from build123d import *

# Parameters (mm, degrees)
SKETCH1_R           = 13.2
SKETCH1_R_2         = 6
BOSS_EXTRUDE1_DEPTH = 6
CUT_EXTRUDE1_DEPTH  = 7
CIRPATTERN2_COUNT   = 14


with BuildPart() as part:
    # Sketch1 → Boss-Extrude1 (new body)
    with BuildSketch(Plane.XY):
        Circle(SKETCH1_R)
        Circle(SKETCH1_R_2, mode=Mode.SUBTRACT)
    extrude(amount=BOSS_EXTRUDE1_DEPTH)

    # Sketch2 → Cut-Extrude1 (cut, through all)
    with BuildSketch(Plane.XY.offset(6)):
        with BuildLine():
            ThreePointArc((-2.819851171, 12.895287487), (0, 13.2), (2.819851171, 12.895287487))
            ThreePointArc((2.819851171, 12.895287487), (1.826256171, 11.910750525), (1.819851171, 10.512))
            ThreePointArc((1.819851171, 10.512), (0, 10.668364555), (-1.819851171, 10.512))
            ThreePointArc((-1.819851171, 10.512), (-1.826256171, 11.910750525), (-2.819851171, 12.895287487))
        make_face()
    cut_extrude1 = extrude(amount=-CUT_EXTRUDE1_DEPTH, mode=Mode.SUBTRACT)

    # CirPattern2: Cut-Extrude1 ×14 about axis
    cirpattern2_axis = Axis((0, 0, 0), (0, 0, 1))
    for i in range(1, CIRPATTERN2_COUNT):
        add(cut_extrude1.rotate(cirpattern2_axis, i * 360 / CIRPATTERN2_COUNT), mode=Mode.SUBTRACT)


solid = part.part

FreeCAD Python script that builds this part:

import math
import FreeCAD as App
import Part
import Sketcher

V = App.Vector

doc = App.newDocument("Part")
params = doc.addObject("Spreadsheet::Sheet", "Params")
for row, (alias, value) in enumerate([
    ("sketch1_diameter", "12 mm"),
    ("sketch1_diameter2", "26.4 mm"),
    ("pad1_length", "6 mm"),
    ("sketch2_radius", "13.2 mm"),
], start=1):
    params.set(f"A{row}", alias)
    params.set(f"B{row}", "=" + value)
    params.setAlias(f"B{row}", alias)

body = doc.addObject("PartDesign::Body", "Body")

sketch1 = body.newObject("Sketcher::SketchObject", "Sketch")
sketch1.AttachmentSupport = (doc.getObject("XY_Plane"), [""])
sketch1.MapMode = "FlatFace"
sketch1.addGeometry(Part.Circle(V(0, 0, 0), V(0, 0, 1), 13), False)
sketch1.addGeometry(Part.Circle(V(0, 0, 0), V(0, 0, 1), 6), False)
sketch1.addConstraint(Sketcher.Constraint("Coincident", 0, 3, -1, 1))
sketch1.addConstraint(Sketcher.Constraint("Coincident", 1, 3, -1, 1))
sketch1.addConstraint(Sketcher.Constraint("Diameter", 1, 12.0))
sketch1.addConstraint(Sketcher.Constraint("Diameter", 0, 26.4))
sketch1.setExpression("Constraints[2]", "Params.sketch1_diameter")
sketch1.setExpression("Constraints[3]", "Params.sketch1_diameter2")
pad1 = body.newObject("PartDesign::Pad", "Pad")
pad1.Profile = sketch1
pad1.setExpression("Length", "Params.pad1_length")

sketch2 = body.newObject("Sketcher::SketchObject", "Sketch001")
sketch2.AttachmentSupport = (doc.getObject("XY_Plane"), [""])
sketch2.MapMode = "FlatFace"
sketch2.AttachmentOffset = App.Placement(V(0, 0, 6), App.Rotation())
sketch2.addGeometry(Part.ArcOfCircle(Part.Circle(V(0, 0, 0), V(0, 0, 1), 13.2), math.radians(78), math.radians(102)), False)
sketch2.addGeometry(Part.ArcOfCircle(Part.Circle(V(-3.5, 11.2, 0), V(0, 0, 1), 1.8), math.radians(-22), math.radians(68)), False)
sketch2.addGeometry(Part.ArcOfCircle(Part.Circle(V(0, 0, 0), V(0, 0, 1), 10.7), math.radians(80.18), math.radians(99.82)), False)
sketch2.addGeometry(Part.ArcOfCircle(Part.Circle(V(3.5, 11.2, 0), V(0, 0, 1), 1.8), math.radians(112), math.radians(202)), False)
sketch2.addConstraint(Sketcher.Constraint("Coincident", 0, 2, 1, 2))
sketch2.addConstraint(Sketcher.Constraint("Coincident", 1, 1, 2, 2))
sketch2.addConstraint(Sketcher.Constraint("Coincident", 2, 1, 3, 2))
sketch2.addConstraint(Sketcher.Constraint("Coincident", 3, 1, 0, 1))
sketch2.addConstraint(Sketcher.Constraint("Coincident", 0, 3, -1, 1))
sketch2.addConstraint(Sketcher.Constraint("Coincident", 2, 3, -1, 1))
sketch2.addConstraint(Sketcher.Constraint("Equal", 1, 3))
sketch2.addConstraint(Sketcher.Constraint("Symmetric", 1, 3, 3, 3, -2))
sketch2.addConstraint(Sketcher.Constraint("Radius", 0, 13.2))
sketch2.addConstraint(Sketcher.Constraint("DistanceX", 0, 2, 1, 1, 1.0))
sketch2.addConstraint(Sketcher.Constraint("DistanceY", -1, 1, 1, 1, 10.512))
sketch2.addConstraint(Sketcher.Constraint("Radius", 1, 1.827575))
sketch2.addConstraint(Sketcher.Constraint("Radius", 2, 10.668365))
sketch2.setExpression("Constraints[8]", "Params.sketch2_radius")
pocket1 = body.newObject("PartDesign::Pocket", "Pocket")
pocket1.Profile = sketch2
pocket1.Type = "ThroughAll"
doc.recompute()

polarpattern = body.newObject("PartDesign::PolarPattern", "PolarPattern")
polarpattern.Originals = [pocket1]
polarpattern.Axis = (doc.getObject("Z_Axis"), [""])
polarpattern.Angle = 360
polarpattern.Occurrences = 14
body.Tip = polarpattern

doc.recompute()
